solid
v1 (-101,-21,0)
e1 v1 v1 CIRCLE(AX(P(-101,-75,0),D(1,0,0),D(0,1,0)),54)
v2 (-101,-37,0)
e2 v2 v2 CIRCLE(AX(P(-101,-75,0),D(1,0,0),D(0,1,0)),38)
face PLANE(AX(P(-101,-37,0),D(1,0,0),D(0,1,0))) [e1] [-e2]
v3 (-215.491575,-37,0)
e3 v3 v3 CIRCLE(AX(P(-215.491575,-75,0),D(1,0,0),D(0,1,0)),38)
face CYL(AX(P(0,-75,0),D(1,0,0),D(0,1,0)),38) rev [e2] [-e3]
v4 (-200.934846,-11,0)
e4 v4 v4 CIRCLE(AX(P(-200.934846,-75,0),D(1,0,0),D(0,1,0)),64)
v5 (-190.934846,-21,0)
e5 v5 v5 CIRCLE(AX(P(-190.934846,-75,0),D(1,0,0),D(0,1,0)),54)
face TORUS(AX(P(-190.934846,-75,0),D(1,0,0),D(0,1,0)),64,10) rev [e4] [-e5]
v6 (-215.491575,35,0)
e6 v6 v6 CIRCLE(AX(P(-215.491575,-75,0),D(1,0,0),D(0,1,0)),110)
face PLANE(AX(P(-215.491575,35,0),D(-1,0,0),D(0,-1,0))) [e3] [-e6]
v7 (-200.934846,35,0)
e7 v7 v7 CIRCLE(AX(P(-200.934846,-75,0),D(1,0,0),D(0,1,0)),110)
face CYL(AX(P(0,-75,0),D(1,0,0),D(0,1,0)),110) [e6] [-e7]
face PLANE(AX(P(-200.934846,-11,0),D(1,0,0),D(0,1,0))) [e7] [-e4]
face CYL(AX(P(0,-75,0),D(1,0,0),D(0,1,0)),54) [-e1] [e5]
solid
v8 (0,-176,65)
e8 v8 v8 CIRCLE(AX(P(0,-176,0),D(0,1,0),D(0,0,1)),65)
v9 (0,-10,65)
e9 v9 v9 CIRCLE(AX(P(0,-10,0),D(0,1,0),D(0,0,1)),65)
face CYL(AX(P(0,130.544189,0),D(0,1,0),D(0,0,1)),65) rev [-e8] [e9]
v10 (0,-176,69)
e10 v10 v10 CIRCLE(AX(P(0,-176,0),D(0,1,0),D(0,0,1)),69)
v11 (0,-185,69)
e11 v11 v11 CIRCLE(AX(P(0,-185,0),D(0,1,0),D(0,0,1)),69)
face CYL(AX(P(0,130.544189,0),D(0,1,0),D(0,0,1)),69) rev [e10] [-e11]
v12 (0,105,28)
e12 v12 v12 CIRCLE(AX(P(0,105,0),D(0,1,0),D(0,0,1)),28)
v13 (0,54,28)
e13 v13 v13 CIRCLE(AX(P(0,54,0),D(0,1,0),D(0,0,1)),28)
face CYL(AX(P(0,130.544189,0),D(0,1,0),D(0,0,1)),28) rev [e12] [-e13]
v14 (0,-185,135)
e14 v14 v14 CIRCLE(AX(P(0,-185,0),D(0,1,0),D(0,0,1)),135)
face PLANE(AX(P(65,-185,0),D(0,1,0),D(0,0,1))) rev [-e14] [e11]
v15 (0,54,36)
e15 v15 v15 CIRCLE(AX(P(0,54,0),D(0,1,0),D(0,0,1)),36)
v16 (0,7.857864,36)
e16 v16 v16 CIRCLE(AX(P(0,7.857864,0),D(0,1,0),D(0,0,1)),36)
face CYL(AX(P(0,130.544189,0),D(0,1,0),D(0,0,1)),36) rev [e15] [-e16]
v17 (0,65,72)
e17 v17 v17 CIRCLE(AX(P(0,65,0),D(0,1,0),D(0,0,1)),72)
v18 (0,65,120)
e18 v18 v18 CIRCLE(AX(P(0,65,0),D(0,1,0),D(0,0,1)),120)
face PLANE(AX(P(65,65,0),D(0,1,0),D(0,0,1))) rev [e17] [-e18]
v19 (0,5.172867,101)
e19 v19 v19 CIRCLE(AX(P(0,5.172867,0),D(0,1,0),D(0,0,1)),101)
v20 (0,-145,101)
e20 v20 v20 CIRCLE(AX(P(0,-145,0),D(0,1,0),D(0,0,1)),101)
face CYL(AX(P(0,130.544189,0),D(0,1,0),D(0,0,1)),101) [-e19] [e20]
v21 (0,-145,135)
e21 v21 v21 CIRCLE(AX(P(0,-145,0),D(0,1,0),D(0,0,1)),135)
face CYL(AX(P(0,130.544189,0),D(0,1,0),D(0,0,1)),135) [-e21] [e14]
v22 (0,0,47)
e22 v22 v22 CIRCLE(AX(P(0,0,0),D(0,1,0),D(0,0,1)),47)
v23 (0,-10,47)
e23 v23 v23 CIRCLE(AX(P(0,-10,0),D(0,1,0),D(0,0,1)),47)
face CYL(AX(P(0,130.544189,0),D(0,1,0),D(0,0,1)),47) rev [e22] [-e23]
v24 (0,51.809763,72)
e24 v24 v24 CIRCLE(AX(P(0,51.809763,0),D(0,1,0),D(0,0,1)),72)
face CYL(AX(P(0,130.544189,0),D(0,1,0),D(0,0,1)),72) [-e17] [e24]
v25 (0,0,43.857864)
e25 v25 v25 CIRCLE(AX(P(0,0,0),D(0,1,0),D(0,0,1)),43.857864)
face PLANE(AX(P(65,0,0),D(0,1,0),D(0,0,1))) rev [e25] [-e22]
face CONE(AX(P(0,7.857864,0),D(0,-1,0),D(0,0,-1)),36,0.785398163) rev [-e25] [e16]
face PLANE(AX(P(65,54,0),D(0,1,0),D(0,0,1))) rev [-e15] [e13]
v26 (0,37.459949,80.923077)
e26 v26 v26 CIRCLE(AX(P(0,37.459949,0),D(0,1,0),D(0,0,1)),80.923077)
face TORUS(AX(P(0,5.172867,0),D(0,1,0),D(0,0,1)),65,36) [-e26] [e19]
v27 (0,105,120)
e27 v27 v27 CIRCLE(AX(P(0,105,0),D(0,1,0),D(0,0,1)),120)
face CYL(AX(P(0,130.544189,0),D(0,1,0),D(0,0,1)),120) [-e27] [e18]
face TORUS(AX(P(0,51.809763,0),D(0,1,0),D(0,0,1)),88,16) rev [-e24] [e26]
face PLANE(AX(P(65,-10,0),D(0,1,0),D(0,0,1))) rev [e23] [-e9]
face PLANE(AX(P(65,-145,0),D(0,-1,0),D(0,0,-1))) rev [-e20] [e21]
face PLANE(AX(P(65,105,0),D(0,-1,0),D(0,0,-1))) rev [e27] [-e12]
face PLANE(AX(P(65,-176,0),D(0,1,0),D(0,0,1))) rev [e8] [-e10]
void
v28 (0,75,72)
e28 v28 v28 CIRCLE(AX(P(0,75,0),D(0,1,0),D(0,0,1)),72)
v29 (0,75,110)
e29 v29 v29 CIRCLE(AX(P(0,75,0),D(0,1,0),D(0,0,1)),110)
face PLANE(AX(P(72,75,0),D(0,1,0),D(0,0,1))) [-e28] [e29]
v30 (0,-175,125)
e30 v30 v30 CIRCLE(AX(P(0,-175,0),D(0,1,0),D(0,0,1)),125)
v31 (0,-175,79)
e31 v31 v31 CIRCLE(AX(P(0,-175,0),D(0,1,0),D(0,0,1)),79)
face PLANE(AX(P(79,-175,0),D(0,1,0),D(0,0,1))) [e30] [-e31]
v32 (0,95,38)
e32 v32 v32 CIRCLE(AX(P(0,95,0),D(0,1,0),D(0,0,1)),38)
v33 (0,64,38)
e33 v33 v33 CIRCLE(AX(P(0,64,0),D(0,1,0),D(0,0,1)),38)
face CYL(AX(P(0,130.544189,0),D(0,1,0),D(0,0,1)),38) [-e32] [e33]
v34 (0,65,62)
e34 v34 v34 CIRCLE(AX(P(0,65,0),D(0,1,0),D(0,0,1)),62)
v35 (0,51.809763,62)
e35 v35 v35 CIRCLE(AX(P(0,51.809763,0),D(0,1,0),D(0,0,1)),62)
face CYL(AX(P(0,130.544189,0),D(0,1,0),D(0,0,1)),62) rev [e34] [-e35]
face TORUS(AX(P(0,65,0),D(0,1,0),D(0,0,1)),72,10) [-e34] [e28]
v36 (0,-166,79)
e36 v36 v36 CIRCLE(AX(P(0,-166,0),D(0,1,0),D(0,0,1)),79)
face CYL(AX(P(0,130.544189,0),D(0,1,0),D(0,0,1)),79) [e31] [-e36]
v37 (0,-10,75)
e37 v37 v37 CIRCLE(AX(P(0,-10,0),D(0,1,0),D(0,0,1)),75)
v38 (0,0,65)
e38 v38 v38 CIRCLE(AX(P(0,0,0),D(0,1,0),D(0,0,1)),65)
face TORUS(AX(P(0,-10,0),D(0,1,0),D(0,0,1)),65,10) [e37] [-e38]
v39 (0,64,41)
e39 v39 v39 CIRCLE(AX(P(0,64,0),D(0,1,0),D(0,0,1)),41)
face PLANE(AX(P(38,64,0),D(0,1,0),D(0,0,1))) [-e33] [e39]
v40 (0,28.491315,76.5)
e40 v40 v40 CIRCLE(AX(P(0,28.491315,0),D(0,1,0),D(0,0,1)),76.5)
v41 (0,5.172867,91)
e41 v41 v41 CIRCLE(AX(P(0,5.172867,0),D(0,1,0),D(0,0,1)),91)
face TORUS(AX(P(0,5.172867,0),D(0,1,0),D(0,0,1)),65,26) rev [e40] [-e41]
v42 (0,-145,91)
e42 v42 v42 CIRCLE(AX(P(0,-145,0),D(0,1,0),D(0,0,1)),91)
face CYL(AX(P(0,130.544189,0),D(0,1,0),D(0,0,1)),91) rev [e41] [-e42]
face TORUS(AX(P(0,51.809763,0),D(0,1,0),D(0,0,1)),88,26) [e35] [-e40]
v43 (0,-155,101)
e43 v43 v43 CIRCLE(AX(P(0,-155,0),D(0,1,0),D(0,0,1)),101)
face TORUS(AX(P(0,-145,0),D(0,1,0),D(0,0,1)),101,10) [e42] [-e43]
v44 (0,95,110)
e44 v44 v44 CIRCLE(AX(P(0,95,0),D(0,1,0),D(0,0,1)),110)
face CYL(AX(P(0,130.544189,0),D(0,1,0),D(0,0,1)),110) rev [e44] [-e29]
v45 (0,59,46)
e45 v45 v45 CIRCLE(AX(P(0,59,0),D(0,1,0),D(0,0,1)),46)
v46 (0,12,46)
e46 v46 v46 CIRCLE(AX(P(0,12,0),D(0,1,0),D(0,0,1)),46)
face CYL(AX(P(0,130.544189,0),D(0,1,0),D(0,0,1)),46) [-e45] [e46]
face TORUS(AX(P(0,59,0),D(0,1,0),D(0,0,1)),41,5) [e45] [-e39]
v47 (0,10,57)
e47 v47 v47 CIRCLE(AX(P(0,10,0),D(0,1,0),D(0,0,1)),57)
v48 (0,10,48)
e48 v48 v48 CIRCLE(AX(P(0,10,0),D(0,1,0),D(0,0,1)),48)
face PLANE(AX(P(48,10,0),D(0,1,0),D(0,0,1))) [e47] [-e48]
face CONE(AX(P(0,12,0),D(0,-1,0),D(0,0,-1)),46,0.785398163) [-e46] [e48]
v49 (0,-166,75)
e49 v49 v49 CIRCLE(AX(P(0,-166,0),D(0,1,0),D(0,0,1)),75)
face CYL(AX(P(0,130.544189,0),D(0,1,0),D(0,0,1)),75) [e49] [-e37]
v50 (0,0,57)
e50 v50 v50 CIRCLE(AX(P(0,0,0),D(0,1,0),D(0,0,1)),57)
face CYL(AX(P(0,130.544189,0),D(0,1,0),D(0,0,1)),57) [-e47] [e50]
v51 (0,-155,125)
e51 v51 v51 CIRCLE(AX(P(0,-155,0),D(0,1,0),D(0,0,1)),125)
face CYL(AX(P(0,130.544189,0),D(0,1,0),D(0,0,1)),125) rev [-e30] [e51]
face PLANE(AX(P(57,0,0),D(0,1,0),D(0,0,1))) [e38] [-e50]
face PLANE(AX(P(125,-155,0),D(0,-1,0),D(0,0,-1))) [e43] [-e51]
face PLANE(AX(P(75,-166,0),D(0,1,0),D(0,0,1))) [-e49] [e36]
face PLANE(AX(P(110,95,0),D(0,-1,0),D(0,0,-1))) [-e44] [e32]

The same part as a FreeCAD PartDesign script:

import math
import FreeCAD as App
import Part
import Sketcher
from FreeCAD import Vector
Q = App.Units.Quantity

doc = App.newDocument("Part")
body = doc.addObject("PartDesign::Body", "Body")

# Sketch on XY plane
sketch1 = doc.addObject("Sketcher::SketchObject", "Sketch")
body.addObject(sketch1)
sketch1.AttachmentSupport = (doc.XY_Plane, [""])
sketch1.MapMode = "FlatFace"
sketch1.addGeometry(Part.LineSegment(Vector(101, -145, 0), Vector(101, 5.2, 0)), False)
sketch1.addGeometry(Part.ArcOfCircle(Part.Circle(Vector(65, 5.2, 0), Vector(0, 0, 1), 36), math.radians(0), math.radians(64)), False)
sketch1.addGeometry(Part.ArcOfCircle(Part.Circle(Vector(88, 51.8, 0), Vector(0, 0, 1), 16), math.radians(180), math.radians(244)), False)
sketch1.addGeometry(Part.LineSegment(Vector(72, 51.8, 0), Vector(72, 65, 0)), False)
sketch1.addGeometry(Part.LineSegment(Vector(72, 65, 0), Vector(120, 65, 0)), False)
sketch1.addGeometry(Part.LineSegment(Vector(120, 65, 0), Vector(120, 105, 0)), False)
sketch1.addGeometry(Part.LineSegment(Vector(120, 105, 0), Vector(28, 105, 0)), False)
sketch1.addGeometry(Part.LineSegment(Vector(28, 105, 0), Vector(28, 54, 0)), False)
sketch1.addGeometry(Part.LineSegment(Vector(28, 54, 0), Vector(36, 54, 0)), False)
sketch1.addGeometry(Part.LineSegment(Vector(36, 54, 0), Vector(36, 7.9, 0)), False)
sketch1.addGeometry(Part.LineSegment(Vector(36, 7.9, 0), Vector(43.9, 0, 0)), False)
sketch1.addGeometry(Part.LineSegment(Vector(43.9, 0, 0), Vector(47, 0, 0)), False)
sketch1.addGeometry(Part.LineSegment(Vector(47, 0, 0), Vector(47, -10, 0)), False)
sketch1.addGeometry(Part.LineSegment(Vector(47, -10, 0), Vector(65, -10, 0)), False)
sketch1.addGeometry(Part.LineSegment(Vector(65, -10, 0), Vector(65, -176, 0)), False)
sketch1.addGeometry(Part.LineSegment(Vector(65, -176, 0), Vector(69, -176, 0)), False)
sketch1.addGeometry(Part.LineSegment(Vector(69, -176, 0), Vector(69, -185, 0)), False)
sketch1.addGeometry(Part.LineSegment(Vector(69, -185, 0), Vector(135, -185, 0)), False)
sketch1.addGeometry(Part.LineSegment(Vector(135, -185, 0), Vector(135, -145, 0)), False)
sketch1.addGeometry(Part.LineSegment(Vector(135, -145, 0), Vector(101, -145, 0)), False)
sketch1.addGeometry(Part.LineSegment(Vector(91, 5.2, 0), Vector(91, -145, 0)), False)
sketch1.addGeometry(Part.ArcOfCircle(Part.Circle(Vector(101, -145, 0), Vector(0, 0, 1), 10), math.radians(180), math.radians(270)), False)
sketch1.addGeometry(Part.LineSegment(Vector(101, -155, 0), Vector(125, -155, 0)), False)
sketch1.addGeometry(Part.LineSegment(Vector(125, -155, 0), Vector(125, -175, 0)), False)
sketch1.addGeometry(Part.LineSegment(Vector(125, -175, 0), Vector(79, -175, 0)), False)
sketch1.addGeometry(Part.LineSegment(Vector(79, -175, 0), Vector(79, -166, 0)), False)
sketch1.addGeometry(Part.LineSegment(Vector(79, -166, 0), Vector(75, -166, 0)), False)
sketch1.addGeometry(Part.LineSegment(Vector(75, -166, 0), Vector(75, -10, 0)), False)
sketch1.addGeometry(Part.ArcOfCircle(Part.Circle(Vector(65, -10, 0), Vector(0, 0, 1), 10), math.radians(0), math.radians(90)), False)
sketch1.addGeometry(Part.LineSegment(Vector(65, 0, 0), Vector(57, 0, 0)), False)
sketch1.addGeometry(Part.LineSegment(Vector(57, 0, 0), Vector(57, 10, 0)), False)
sketch1.addGeometry(Part.LineSegment(Vector(57, 10, 0), Vector(48, 10, 0)), False)
sketch1.addGeometry(Part.LineSegment(Vector(48, 10, 0), Vector(46, 12, 0)), False)
sketch1.addGeometry(Part.LineSegment(Vector(46, 12, 0), Vector(46, 59, 0)), False)
sketch1.addGeometry(Part.ArcOfCircle(Part.Circle(Vector(41, 59, 0), Vector(0, 0, 1), 5), math.radians(0), math.radians(90)), False)
sketch1.addGeometry(Part.LineSegment(Vector(41, 64, 0), Vector(38, 64, 0)), False)
sketch1.addGeometry(Part.LineSegment(Vector(38, 64, 0), Vector(38, 95, 0)), False)
sketch1.addGeometry(Part.LineSegment(Vector(38, 95, 0), Vector(110, 95, 0)), False)
sketch1.addGeometry(Part.LineSegment(Vector(110, 95, 0), Vector(110, 75, 0)), False)
sketch1.addGeometry(Part.LineSegment(Vector(110, 75, 0), Vector(72, 75, 0)), False)
sketch1.addGeometry(Part.ArcOfCircle(Part.Circle(Vector(72, 65, 0), Vector(0, 0, 1), 10), math.radians(90), math.radians(180)), False)
sketch1.addGeometry(Part.LineSegment(Vector(62, 65, 0), Vector(62, 51.8, 0)), False)
sketch1.addGeometry(Part.ArcOfCircle(Part.Circle(Vector(88, 51.8, 0), Vector(0, 0, 1), 26), math.radians(180), math.radians(244)), False)
sketch1.addGeometry(Part.ArcOfCircle(Part.Circle(Vector(65, 5.2, 0), Vector(0, 0, 1), 26), math.radians(0), math.radians(64)), False)
sketch1.addConstraint(Sketcher.Constraint("Tangent", 0, 2, 1, 1))
sketch1.addConstraint(Sketcher.Constraint("Tangent", 1, 2, 2, 2))
sketch1.addConstraint(Sketcher.Constraint("Tangent", 2, 1, 3, 1))
sketch1.addConstraint(Sketcher.Constraint("Coincident", 3, 2, 4, 1))
sketch1.addConstraint(Sketcher.Constraint("Coincident", 4, 2, 5, 1))
sketch1.addConstraint(Sketcher.Constraint("Coincident", 5, 2, 6, 1))
sketch1.addConstraint(Sketcher.Constraint("Coincident", 6, 2, 7, 1))
sketch1.addConstraint(Sketcher.Constraint("Coincident", 7, 2, 8, 1))
sketch1.addConstraint(Sketcher.Constraint("Coincident", 8, 2, 9, 1))
sketch1.addConstraint(Sketcher.Constraint("Coincident", 9, 2, 10, 1))
sketch1.addConstraint(Sketcher.Constraint("Coincident", 10, 2, 11, 1))
sketch1.addConstraint(Sketcher.Constraint("Coincident", 11, 2, 12, 1))
sketch1.addConstraint(Sketcher.Constraint("Coincident", 12, 2, 13, 1))
sketch1.addConstraint(Sketcher.Constraint("Coincident", 13, 2, 14, 1))
sketch1.addConstraint(Sketcher.Constraint("Coincident", 14, 2, 15, 1))
sketch1.addConstraint(Sketcher.Constraint("Coincident", 15, 2, 16, 1))
sketch1.addConstraint(Sketcher.Constraint("Coincident", 16, 2, 17, 1))
sketch1.addConstraint(Sketcher.Constraint("Coincident", 17, 2, 18, 1))
sketch1.addConstraint(Sketcher.Constraint("Coincident", 18, 2, 19, 1))
sketch1.addConstraint(Sketcher.Constraint("Coincident", 19, 2, 0, 1))
sketch1.addConstraint(Sketcher.Constraint("Tangent", 20, 2, 21, 1))
sketch1.addConstraint(Sketcher.Constraint("Tangent", 21, 2, 22, 1))
sketch1.addConstraint(Sketcher.Constraint("Coincident", 22, 2, 23, 1))
sketch1.addConstraint(Sketcher.Constraint("Coincident", 23, 2, 24, 1))
sketch1.addConstraint(Sketcher.Constraint("Coincident", 24, 2, 25, 1))
sketch1.addConstraint(Sketcher.Constraint("Coincident", 25, 2, 26, 1))
sketch1.addConstraint(Sketcher.Constraint("Coincident", 26, 2, 27, 1))
sketch1.addConstraint(Sketcher.Constraint("Tangent", 27, 2, 28, 1))
sketch1.addConstraint(Sketcher.Constraint("Tangent", 28, 2, 29, 1))
sketch1.addConstraint(Sketcher.Constraint("Coincident", 29, 2, 30, 1))
sketch1.addConstraint(Sketcher.Constraint("Coincident", 30, 2, 31, 1))
sketch1.addConstraint(Sketcher.Constraint("Coincident", 31, 2, 32, 1))
sketch1.addConstraint(Sketcher.Constraint("Coincident", 32, 2, 33, 1))
sketch1.addConstraint(Sketcher.Constraint("Tangent", 33, 2, 34, 1))
sketch1.addConstraint(Sketcher.Constraint("Tangent", 34, 2, 35, 1))
sketch1.addConstraint(Sketcher.Constraint("Coincident", 35, 2, 36, 1))
sketch1.addConstraint(Sketcher.Constraint("Coincident", 36, 2, 37, 1))
sketch1.addConstraint(Sketcher.Constraint("Coincident", 37, 2, 38, 1))
sketch1.addConstraint(Sketcher.Constraint("Coincident", 38, 2, 39, 1))
sketch1.addConstraint(Sketcher.Constraint("Tangent", 39, 2, 40, 1))
sketch1.addConstraint(Sketcher.Constraint("Tangent", 40, 2, 41, 1))
sketch1.addConstraint(Sketcher.Constraint("Tangent", 41, 2, 42, 1))
sketch1.addConstraint(Sketcher.Constraint("Tangent", 42, 2, 43, 2))
sketch1.addConstraint(Sketcher.Constraint("Tangent", 43, 1, 20, 1))
sketch1.addConstraint(Sketcher.Constraint("Vertical", 0))
sketch1.addConstraint(Sketcher.Constraint("Vertical", 3))
sketch1.addConstraint(Sketcher.Constraint("Horizontal", 4))
sketch1.addConstraint(Sketcher.Constraint("Vertical", 5))
sketch1.addConstraint(Sketcher.Constraint("Horizontal", 6))
sketch1.addConstraint(Sketcher.Constraint("Vertical", 7))
sketch1.addConstraint(Sketcher.Constraint("Horizontal", 8))
sketch1.addConstraint(Sketcher.Constraint("Vertical", 9))
sketch1.addConstraint(Sketcher.Constraint("Horizontal", 11))
sketch1.addConstraint(Sketcher.Constraint("Vertical", 12))
sketch1.addConstraint(Sketcher.Constraint("Horizontal", 13))
sketch1.addConstraint(Sketcher.Constraint("Vertical", 14))
sketch1.addConstraint(Sketcher.Constraint("Horizontal", 15))
sketch1.addConstraint(Sketcher.Constraint("Vertical", 16))
sketch1.addConstraint(Sketcher.Constraint("Horizontal", 17))
sketch1.addConstraint(Sketcher.Constraint("Vertical", 18))
sketch1.addConstraint(Sketcher.Constraint("Horizontal", 19))
sketch1.addConstraint(Sketcher.Constraint("Vertical", 20))
sketch1.addConstraint(Sketcher.Constraint("Horizontal", 22))
sketch1.addConstraint(Sketcher.Constraint("Vertical", 23))
sketch1.addConstraint(Sketcher.Constraint("Horizontal", 24))
sketch1.addConstraint(Sketcher.Constraint("Vertical", 25))
sketch1.addConstraint(Sketcher.Constraint("Horizontal", 26))
sketch1.addConstraint(Sketcher.Constraint("Vertical", 27))
sketch1.addConstraint(Sketcher.Constraint("Horizontal", 29))
sketch1.addConstraint(Sketcher.Constraint("Vertical", 30))
sketch1.addConstraint(Sketcher.Constraint("Horizontal", 31))
sketch1.addConstraint(Sketcher.Constraint("Vertical", 33))
sketch1.addConstraint(Sketcher.Constraint("Horizontal", 35))
sketch1.addConstraint(Sketcher.Constraint("Vertical", 36))
sketch1.addConstraint(Sketcher.Constraint("Horizontal", 37))
sketch1.addConstraint(Sketcher.Constraint("Vertical", 38))
sketch1.addConstraint(Sketcher.Constraint("Horizontal", 39))
sketch1.addConstraint(Sketcher.Constraint("Vertical", 41))
sketch1.addConstraint(Sketcher.Constraint("Coincident", 42, 3, 2, 3))
sketch1.addConstraint(Sketcher.Constraint("Coincident", 43, 3, 1, 3))
sketch1.addConstraint(Sketcher.Constraint("Coincident", 3, 2, 40, 3))
sketch1.addConstraint(Sketcher.Constraint("Coincident", 13, 2, 28, 3))
sketch1.addConstraint(Sketcher.Constraint("Coincident", 19, 2, 21, 3))
sketch1.addConstraint(Sketcher.Constraint("Equal", 21, 28))
sketch1.addConstraint(Sketcher.Constraint("Equal", 42, 43))
sketch1.addConstraint(Sketcher.Constraint("PointOnObject", 10, 2, -1))
sketch1.addConstraint(Sketcher.Constraint("PointOnObject", 28, 2, -1))
sketch1.addConstraint(Sketcher.Constraint("Parallel", 10, 32))
sketch1.addConstraint(Sketcher.Constraint("Vertical", 1, 3, 28, 3))
sketch1.addConstraint(Sketcher.Constraint("Equal", 15, 26))
sketch1.addConstraint(Sketcher.Constraint("Equal", 8, 29))
sketch1.addConstraint(Sketcher.Constraint("Equal", 31, 16))
sketch1.addConstraint(Sketcher.Constraint("Equal", 5, 18))
sketch1.addConstraint(Sketcher.Constraint("Equal", 16, 25))
sketch1.addConstraint(Sketcher.Constraint("Equal", 12, 30))
sketch1.addConstraint(Sketcher.Constraint("Equal", 23, 38))
sketch1.addConstraint(Sketcher.Constraint("Radius", 1, 36.0))
sketch1.addConstraint(Sketcher.Constraint("Radius", 2, 16.0))
sketch1.addConstraint(Sketcher.Constraint("Radius", 34, 5.0))
sketch1.addConstraint(Sketcher.Constraint("DistanceX", 4, 1, 4, 2, 48.0))
sketch1.addConstraint(Sketcher.Constraint("DistanceX", 6, 2, 6, 1, 92.0))
sketch1.addConstraint(Sketcher.Constraint("DistanceX", 8, 1, 8, 2, 8.0))
sketch1.addConstraint(Sketcher.Constraint("DistanceX", 13, 1, 13, 2, 18.0))
sketch1.addConstraint(Sketcher.Constraint("DistanceX", 15, 1, 15, 2, 4.0))
sketch1.addConstraint(Sketcher.Constraint("DistanceX", 17, 1, 17, 2, 66.0))
sketch1.addConstraint(Sketcher.Constraint("DistanceX", 22, 1, 22, 2, 24.0))
sketch1.addConstraint(Sketcher.Constraint("DistanceX", 31, 2, 31, 1, 9.0))
sketch1.addConstraint(Sketcher.Constraint("DistanceX", 35, 2, 35, 1, 3.0))
sketch1.addConstraint(Sketcher.Constraint("DistanceX", 37, 1, 37, 2, 72.0))
sketch1.addConstraint(Sketcher.Constraint("DistanceX", 39, 2, 39, 1, 38.0))
sketch1.addConstraint(Sketcher.Constraint("DistanceY", 5, 1, 5, 2, 40.0))
sketch1.addConstraint(Sketcher.Constraint("DistanceY", 7, 2, 7, 1, 51.0))
sketch1.addConstraint(Sketcher.Constraint("DistanceY", 14, 2, 14, 1, 166.0))
sketch1.addConstraint(Sketcher.Constraint("DistanceY", 23, 2, 23, 1, 20.0))
sketch1.addConstraint(Sketcher.Constraint("DistanceY", 33, 1, 33, 2, 47.0))
sketch1.addConstraint(Sketcher.Constraint("DistanceY", 36, 1, 36, 2, 31.0))
sketch1.addConstraint(Sketcher.Constraint("Angle", 10, Q("-45 deg")))
sketch1.addConstraint(Sketcher.Constraint("DistanceX", -1, 1, 1, 3, 65.0))
sketch1.addConstraint(Sketcher.Constraint("DistanceX", -1, 1, 2, 3, 88.0))
sketch1.addConstraint(Sketcher.Constraint("Distance", 10, 11.112698))
sketch1.addConstraint(Sketcher.Constraint("DistanceY", 0, 1, 0, 2, 150.172867))
revolution = doc.addObject("PartDesign::Revolution", "Revolution")
body.addObject(revolution)
revolution.Profile = sketch1
revolution.ReferenceAxis = (sketch1, ["V_Axis"])
revolution.Angle = 360
body2 = doc.addObject("PartDesign::Body", "Body001")

# Sketch on XY plane
sketch2 = doc.addObject("Sketcher::SketchObject", "Sketch001")
body2.addObject(sketch2)
sketch2.AttachmentSupport = (doc.getObject("XY_Plane001"), [""])
sketch2.MapMode = "FlatFace"
sketch2.addGeometry(Part.LineSegment(Vector(-215, 35, 0), Vector(-215, -37, 0)), False)
sketch2.addGeometry(Part.LineSegment(Vector(-215, -37, 0), Vector(-101, -37, 0)), False)
sketch2.addGeometry(Part.LineSegment(Vector(-101, -37, 0), Vector(-101, -21, 0)), False)
sketch2.addGeometry(Part.LineSegment(Vector(-101, -21, 0), Vector(-191, -21, 0)), False)
sketch2.addGeometry(Part.ArcOfCircle(Part.Circle(Vector(-191, -11, 0), Vector(0, 0, 1), 10), math.radians(180), math.radians(270)), False)
sketch2.addGeometry(Part.LineSegment(Vector(-201, -11, 0), Vector(-201, 35, 0)), False)
sketch2.addGeometry(Part.LineSegment(Vector(-201, 35, 0), Vector(-215, 35, 0)), False)
sketch2.addGeometry(Part.LineSegment(Vector(-101, -75, 0), Vector(-215, -75, 0)), True)  # axis
sketch2.addConstraint(Sketcher.Constraint("Coincident", 0, 2, 1, 1))
sketch2.addConstraint(Sketcher.Constraint("Coincident", 1, 2, 2, 1))
sketch2.addConstraint(Sketcher.Constraint("Coincident", 2, 2, 3, 1))
sketch2.addConstraint(Sketcher.Constraint("Tangent", 3, 2, 4, 2))
sketch2.addConstraint(Sketcher.Constraint("Tangent", 4, 1, 5, 1))
sketch2.addConstraint(Sketcher.Constraint("Coincident", 5, 2, 6, 1))
sketch2.addConstraint(Sketcher.Constraint("Coincident", 6, 2, 0, 1))
sketch2.addConstraint(Sketcher.Constraint("Vertical", 0))
sketch2.addConstraint(Sketcher.Constraint("Horizontal", 1))
sketch2.addConstraint(Sketcher.Constraint("Vertical", 2))
sketch2.addConstraint(Sketcher.Constraint("Horizontal", 3))
sketch2.addConstraint(Sketcher.Constraint("Vertical", 5))
sketch2.addConstraint(Sketcher.Constraint("Horizontal", 6))
sketch2.addConstraint(Sketcher.Constraint("Horizontal", 7))
sketch2.addConstraint(Sketcher.Constraint("Vertical", 2, 2, 7, 1))
sketch2.addConstraint(Sketcher.Constraint("Vertical", 6, 2, 7, 2))
sketch2.addConstraint(Sketcher.Constraint("Radius", 4, 10.0))
sketch2.addConstraint(Sketcher.Constraint("DistanceY", 0, 2, 0, 1, 72.0))
sketch2.addConstraint(Sketcher.Constraint("DistanceY", 2, 1, 2, 2, 16.0))
sketch2.addConstraint(Sketcher.Constraint("DistanceY", 4, 3, -1, 1, 11.0))
sketch2.addConstraint(Sketcher.Constraint("DistanceX", 1, 2, -1, 1, 101.0))
sketch2.addConstraint(Sketcher.Constraint("DistanceY", 7, 1, -1, 1, 75.0))
sketch2.addConstraint(Sketcher.Constraint("DistanceX", 6, 2, 6, 1, 14.556729))
sketch2.addConstraint(Sketcher.Constraint("DistanceX", 1, 1, 1, 2, 114.491575))
revolution2 = doc.addObject("PartDesign::Revolution", "Revolution001")
body2.addObject(revolution2)
revolution2.Profile = sketch2
revolution2.ReferenceAxis = (sketch2, ["Axis0"])
revolution2.Angle = 360

doc.recompute()
